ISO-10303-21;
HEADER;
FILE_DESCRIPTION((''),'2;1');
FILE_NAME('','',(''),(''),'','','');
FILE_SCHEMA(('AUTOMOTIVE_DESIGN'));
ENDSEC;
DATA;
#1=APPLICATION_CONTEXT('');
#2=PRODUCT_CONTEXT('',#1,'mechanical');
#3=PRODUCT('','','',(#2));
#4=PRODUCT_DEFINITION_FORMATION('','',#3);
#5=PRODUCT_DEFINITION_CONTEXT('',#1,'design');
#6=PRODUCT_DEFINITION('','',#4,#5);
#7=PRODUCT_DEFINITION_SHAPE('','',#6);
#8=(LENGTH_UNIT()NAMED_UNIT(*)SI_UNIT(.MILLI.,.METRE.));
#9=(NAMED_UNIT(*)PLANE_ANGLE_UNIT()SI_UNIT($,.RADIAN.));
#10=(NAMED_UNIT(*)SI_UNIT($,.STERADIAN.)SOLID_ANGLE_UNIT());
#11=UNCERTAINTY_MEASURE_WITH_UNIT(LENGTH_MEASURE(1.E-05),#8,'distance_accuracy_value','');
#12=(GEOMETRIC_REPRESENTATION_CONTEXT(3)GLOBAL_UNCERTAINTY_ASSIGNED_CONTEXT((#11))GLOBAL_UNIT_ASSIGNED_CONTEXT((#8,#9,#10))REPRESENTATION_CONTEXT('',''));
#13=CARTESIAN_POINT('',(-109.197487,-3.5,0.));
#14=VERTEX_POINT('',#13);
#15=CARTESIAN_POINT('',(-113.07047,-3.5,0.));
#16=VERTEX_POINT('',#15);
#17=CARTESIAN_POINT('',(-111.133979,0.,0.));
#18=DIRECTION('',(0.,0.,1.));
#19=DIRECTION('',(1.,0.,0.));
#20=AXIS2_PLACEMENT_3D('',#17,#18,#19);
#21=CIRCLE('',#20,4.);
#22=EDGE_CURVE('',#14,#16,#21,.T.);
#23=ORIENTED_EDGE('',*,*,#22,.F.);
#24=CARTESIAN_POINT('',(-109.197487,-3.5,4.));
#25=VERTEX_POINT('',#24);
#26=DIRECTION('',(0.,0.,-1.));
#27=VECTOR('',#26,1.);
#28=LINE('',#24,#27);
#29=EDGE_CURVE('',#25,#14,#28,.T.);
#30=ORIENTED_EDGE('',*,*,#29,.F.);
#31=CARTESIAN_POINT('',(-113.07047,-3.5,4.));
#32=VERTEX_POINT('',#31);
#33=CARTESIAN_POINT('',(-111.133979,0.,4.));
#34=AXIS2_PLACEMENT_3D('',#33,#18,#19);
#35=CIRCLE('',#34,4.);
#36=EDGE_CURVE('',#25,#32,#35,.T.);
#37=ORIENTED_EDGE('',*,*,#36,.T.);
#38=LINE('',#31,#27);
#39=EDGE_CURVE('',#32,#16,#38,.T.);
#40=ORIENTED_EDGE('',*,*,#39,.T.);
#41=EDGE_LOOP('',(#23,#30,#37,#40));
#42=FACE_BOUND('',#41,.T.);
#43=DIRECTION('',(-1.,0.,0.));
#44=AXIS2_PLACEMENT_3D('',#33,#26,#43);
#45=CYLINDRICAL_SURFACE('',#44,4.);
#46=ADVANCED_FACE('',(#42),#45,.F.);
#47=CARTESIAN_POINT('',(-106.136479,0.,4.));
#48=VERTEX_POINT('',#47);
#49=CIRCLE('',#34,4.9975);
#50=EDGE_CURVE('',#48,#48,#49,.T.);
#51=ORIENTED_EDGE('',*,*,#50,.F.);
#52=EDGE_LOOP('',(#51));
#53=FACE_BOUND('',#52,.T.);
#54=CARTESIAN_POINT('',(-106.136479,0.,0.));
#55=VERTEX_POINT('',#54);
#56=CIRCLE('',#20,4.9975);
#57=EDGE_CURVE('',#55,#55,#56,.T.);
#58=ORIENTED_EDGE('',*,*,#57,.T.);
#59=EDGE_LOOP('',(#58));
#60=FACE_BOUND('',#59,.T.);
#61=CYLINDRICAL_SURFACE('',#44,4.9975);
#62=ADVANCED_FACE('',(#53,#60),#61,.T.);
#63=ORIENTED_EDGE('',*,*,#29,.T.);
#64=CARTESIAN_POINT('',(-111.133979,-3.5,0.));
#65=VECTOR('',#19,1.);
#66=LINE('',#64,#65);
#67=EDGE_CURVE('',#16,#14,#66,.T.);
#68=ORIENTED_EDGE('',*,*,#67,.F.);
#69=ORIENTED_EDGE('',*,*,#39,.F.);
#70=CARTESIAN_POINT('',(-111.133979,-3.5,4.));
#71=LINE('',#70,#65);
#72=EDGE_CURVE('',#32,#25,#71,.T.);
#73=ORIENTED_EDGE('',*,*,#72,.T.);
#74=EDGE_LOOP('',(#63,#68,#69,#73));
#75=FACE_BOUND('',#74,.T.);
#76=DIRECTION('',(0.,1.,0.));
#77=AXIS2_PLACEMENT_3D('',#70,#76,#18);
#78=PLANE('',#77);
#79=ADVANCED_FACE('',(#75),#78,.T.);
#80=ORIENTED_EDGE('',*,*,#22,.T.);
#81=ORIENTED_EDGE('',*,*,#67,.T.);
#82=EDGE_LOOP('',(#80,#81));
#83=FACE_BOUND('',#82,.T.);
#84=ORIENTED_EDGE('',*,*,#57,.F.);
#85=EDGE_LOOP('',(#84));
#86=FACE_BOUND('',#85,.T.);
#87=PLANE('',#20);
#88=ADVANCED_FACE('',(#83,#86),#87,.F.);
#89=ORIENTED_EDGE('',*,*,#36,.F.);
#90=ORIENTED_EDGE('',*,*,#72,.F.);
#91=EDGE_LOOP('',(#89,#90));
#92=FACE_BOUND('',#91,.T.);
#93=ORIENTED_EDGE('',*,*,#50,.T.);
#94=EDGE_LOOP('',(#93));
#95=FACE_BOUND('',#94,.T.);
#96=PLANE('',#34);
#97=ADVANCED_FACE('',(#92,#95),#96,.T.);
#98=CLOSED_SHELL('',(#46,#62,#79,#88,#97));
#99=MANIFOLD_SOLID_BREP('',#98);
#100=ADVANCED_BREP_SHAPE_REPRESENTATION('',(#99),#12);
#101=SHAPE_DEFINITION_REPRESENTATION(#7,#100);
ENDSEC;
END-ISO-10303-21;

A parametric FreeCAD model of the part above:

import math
import FreeCAD as App
import Part
import Sketcher

doc = App.newDocument("Part")
body = doc.addObject("PartDesign::Body", "Body")

# Sketch on XY plane
sketch1 = body.newObject("Sketcher::SketchObject", "Sketch")
sketch1.AttachmentSupport = (doc.getObject("XY_Plane"), [""])
sketch1.MapMode = "FlatFace"
sketch1.addGeometry(Part.Circle(App.Vector(-111.133979, 0, 0), App.Vector(0, 0, 1), 4.9975), False)
sketch1.addGeometry(Part.LineSegment(App.Vector(-109.197487, -3.5, 0), App.Vector(-113.07047, -3.5, 0)), False)
sketch1.addGeometry(Part.ArcOfCircle(Part.Circle(App.Vector(-111.133979, 0, 0), App.Vector(0, 0, 1), 4), math.radians(-61.044976), math.radians(241.044976)), False)
sketch1.addConstraint(Sketcher.Constraint("Coincident", 1, 1, 2, 1))
sketch1.addConstraint(Sketcher.Constraint("Coincident", 2, 2, 1, 2))
sketch1.addConstraint(Sketcher.Constraint("Horizontal", 1))
sketch1.addConstraint(Sketcher.Constraint("Coincident", 2, 3, 0, 3))
sketch1.addConstraint(Sketcher.Constraint("PointOnObject", 0, 3, -1))
sketch1.addConstraint(Sketcher.Constraint("Radius", 2, 4.0))
sketch1.addConstraint(Sketcher.Constraint("Diameter", 0, 9.995))
sketch1.addConstraint(Sketcher.Constraint("DistanceY", 1, 1, -1, 1, 3.5))
sketch1.addConstraint(Sketcher.Constraint("DistanceX", 0, 3, -1, 1, 111.133979))
pad1 = body.newObject("PartDesign::Pad", "Pad")
pad1.Profile = sketch1
pad1.Length = 4

doc.recompute()
